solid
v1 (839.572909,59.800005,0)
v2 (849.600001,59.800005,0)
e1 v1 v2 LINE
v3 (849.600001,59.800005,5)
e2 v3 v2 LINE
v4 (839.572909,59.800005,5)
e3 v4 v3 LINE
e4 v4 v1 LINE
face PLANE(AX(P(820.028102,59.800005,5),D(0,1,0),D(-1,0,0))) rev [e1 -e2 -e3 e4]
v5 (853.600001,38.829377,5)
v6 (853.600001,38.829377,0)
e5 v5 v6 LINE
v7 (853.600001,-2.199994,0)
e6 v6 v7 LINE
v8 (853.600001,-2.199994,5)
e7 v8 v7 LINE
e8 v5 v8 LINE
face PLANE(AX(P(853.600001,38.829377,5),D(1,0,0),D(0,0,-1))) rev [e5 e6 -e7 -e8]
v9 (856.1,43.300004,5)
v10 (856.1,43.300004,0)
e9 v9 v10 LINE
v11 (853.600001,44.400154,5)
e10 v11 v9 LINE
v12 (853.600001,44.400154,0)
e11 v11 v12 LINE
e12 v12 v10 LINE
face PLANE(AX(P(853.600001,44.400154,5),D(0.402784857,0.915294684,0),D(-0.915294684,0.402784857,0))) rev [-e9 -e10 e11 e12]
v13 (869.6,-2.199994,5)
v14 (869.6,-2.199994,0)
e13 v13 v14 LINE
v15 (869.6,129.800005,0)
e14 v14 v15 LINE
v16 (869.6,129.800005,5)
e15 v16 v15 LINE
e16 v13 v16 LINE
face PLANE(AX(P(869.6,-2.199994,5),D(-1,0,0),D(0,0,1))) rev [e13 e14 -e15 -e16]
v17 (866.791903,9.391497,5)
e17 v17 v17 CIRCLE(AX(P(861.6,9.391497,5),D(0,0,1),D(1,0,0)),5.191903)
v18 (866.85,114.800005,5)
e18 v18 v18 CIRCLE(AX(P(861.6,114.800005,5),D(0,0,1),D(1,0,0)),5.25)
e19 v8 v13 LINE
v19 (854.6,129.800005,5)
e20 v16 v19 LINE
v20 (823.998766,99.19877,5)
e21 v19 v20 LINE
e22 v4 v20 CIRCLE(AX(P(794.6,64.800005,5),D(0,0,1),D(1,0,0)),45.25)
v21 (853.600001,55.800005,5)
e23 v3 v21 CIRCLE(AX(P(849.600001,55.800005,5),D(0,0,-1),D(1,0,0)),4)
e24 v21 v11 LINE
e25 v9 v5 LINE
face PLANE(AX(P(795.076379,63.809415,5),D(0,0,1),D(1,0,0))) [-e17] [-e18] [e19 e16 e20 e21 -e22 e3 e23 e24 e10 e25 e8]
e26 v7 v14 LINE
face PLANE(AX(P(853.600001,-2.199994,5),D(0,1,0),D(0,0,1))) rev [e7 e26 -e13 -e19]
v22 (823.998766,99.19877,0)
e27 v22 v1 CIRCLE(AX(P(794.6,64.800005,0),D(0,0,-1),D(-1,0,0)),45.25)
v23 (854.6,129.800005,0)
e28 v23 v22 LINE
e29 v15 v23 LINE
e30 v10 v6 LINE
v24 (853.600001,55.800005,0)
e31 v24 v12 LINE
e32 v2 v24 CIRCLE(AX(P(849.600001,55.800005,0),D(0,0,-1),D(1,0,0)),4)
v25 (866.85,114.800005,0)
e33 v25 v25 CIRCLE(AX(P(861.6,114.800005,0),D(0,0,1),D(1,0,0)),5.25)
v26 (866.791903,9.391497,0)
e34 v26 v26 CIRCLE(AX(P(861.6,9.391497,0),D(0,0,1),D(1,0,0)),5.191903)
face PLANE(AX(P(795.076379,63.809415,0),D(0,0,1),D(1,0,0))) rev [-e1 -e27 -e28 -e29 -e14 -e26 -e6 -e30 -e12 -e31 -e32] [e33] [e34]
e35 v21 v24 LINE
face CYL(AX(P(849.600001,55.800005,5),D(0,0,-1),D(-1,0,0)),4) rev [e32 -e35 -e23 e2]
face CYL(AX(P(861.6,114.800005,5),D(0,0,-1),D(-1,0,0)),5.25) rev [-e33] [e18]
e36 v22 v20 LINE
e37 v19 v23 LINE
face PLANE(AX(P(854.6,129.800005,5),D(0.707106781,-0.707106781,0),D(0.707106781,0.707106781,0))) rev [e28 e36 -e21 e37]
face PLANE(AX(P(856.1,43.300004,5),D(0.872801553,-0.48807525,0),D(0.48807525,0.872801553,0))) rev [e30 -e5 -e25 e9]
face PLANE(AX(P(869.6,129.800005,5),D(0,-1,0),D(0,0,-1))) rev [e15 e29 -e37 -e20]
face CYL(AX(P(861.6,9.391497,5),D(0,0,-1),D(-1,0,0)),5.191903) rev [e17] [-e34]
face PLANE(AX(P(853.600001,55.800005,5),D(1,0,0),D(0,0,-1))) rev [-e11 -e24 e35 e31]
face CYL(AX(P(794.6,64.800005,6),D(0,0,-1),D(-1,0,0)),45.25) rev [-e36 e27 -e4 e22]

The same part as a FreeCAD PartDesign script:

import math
import FreeCAD as App
import Part
import Sketcher
Q = App.Units.Quantity

doc = App.newDocument("Part")
body = doc.addObject("PartDesign::Body", "Body")

# Sketch on XY plane
sketch1 = body.newObject("Sketcher::SketchObject", "Sketch")
sketch1.AttachmentSupport = (doc.getObject("XY_Plane"), [""])
sketch1.MapMode = "FlatFace"
sketch1.addGeometry(Part.LineSegment(App.Vector(869.6, 129.8, 0), App.Vector(854.6, 129.8, 0)), False)
sketch1.addGeometry(Part.LineSegment(App.Vector(854.6, 129.8, 0), App.Vector(854.6, 124.8, 0)), False)
sketch1.addGeometry(Part.ArcOfCircle(Part.Circle(App.Vector(806.7, 126.4, 0), App.Vector(0, 0, 1), 47.9), math.radians(-80), math.radians(-2)), False)
sketch1.addGeometry(Part.ArcOfCircle(Part.Circle(App.Vector(795.1, 63.8, 0), App.Vector(0, 0, 1), 25.3), math.radians(-9), math.radians(38)), False)
sketch1.addGeometry(Part.LineSegment(App.Vector(820, 59.8, 0), App.Vector(849.6, 59.8, 0)), False)
sketch1.addGeometry(Part.ArcOfCircle(Part.Circle(App.Vector(849.6, 55.8, 0), App.Vector(0, 0, 1), 4), math.radians(0), math.radians(90)), False)
sketch1.addGeometry(Part.LineSegment(App.Vector(853.6, 55.8, 0), App.Vector(853.6, 44.4, 0)), False)
sketch1.addGeometry(Part.LineSegment(App.Vector(853.6, 44.4, 0), App.Vector(856.1, 43.3, 0)), False)
sketch1.addGeometry(Part.LineSegment(App.Vector(856.1, 43.3, 0), App.Vector(853.6, 38.8, 0)), False)
sketch1.addGeometry(Part.LineSegment(App.Vector(853.6, 38.8, 0), App.Vector(853.6, -2.2, 0)), False)
sketch1.addGeometry(Part.LineSegment(App.Vector(853.6, -2.2, 0), App.Vector(869.6, -2.2, 0)), False)
sketch1.addGeometry(Part.LineSegment(App.Vector(869.6, -2.2, 0), App.Vector(869.6, 129.8, 0)), False)
sketch1.addGeometry(Part.Circle(App.Vector(861.6, 9.4, 0), App.Vector(0, 0, 1), 5.2), False)
sketch1.addGeometry(Part.Circle(App.Vector(861.6, 114.8, 0), App.Vector(0, 0, 1), 5.2), False)
sketch1.addConstraint(Sketcher.Constraint("Coincident", 0, 2, 1, 1))
sketch1.addConstraint(Sketcher.Constraint("Coincident", 1, 2, 2, 2))
sketch1.addConstraint(Sketcher.Constraint("Coincident", 2, 1, 3, 2))
sketch1.addConstraint(Sketcher.Constraint("Coincident", 3, 1, 4, 1))
sketch1.addConstraint(Sketcher.Constraint("Tangent", 4, 2, 5, 2))
sketch1.addConstraint(Sketcher.Constraint("Tangent", 5, 1, 6, 1))
sketch1.addConstraint(Sketcher.Constraint("Coincident", 6, 2, 7, 1))
sketch1.addConstraint(Sketcher.Constraint("Coincident", 7, 2, 8, 1))
sketch1.addConstraint(Sketcher.Constraint("Coincident", 8, 2, 9, 1))
sketch1.addConstraint(Sketcher.Constraint("Coincident", 9, 2, 10, 1))
sketch1.addConstraint(Sketcher.Constraint("Coincident", 10, 2, 11, 1))
sketch1.addConstraint(Sketcher.Constraint("Coincident", 11, 2, 0, 1))
sketch1.addConstraint(Sketcher.Constraint("Horizontal", 0))
sketch1.addConstraint(Sketcher.Constraint("Vertical", 1))
sketch1.addConstraint(Sketcher.Constraint("Horizontal", 4))
sketch1.addConstraint(Sketcher.Constraint("Vertical", 6))
sketch1.addConstraint(Sketcher.Constraint("Vertical", 9))
sketch1.addConstraint(Sketcher.Constraint("Horizontal", 10))
sketch1.addConstraint(Sketcher.Constraint("Vertical", 11))
sketch1.addConstraint(Sketcher.Constraint("Vertical", 12, 3, 13, 3))
sketch1.addConstraint(Sketcher.Constraint("Vertical", 6, 2, 8, 2))
sketch1.addConstraint(Sketcher.Constraint("Radius", 5, 4.0))
sketch1.addConstraint(Sketcher.Constraint("Diameter", 13, 10.5))
sketch1.addConstraint(Sketcher.Constraint("DistanceX", 0, 2, 0, 1, 15.0))
sketch1.addConstraint(Sketcher.Constraint("DistanceX", 10, 1, 10, 2, 15.999999))
sketch1.addConstraint(Sketcher.Constraint("DistanceY", 1, 2, 1, 1, 5.0))
sketch1.addConstraint(Sketcher.Constraint("DistanceY", 11, 1, 11, 2, 131.999999))
sketch1.addConstraint(Sketcher.Constraint("DistanceX", 5, 3, 12, 3, 11.999999))
sketch1.addConstraint(Sketcher.Constraint("DistanceY", 5, 3, 13, 3, 59.0))
sketch1.addConstraint(Sketcher.Constraint("DistanceY", 13, 3, 0, 2, 15.0))
sketch1.addConstraint(Sketcher.Constraint("DistanceX", -1, 1, 5, 3, 849.600001))
sketch1.addConstraint(Sketcher.Constraint("DistanceX", -1, 1, 7, 2, 856.1))
sketch1.addConstraint(Sketcher.Constraint("Radius", 3, 25.271799))
sketch1.addConstraint(Sketcher.Constraint("DistanceY", 7, 2, 5, 1, 12.5))
sketch1.addConstraint(Sketcher.Constraint("Radius", 2, 47.90217))
sketch1.addConstraint(Sketcher.Constraint("Diameter", 12, 10.383806))
sketch1.addConstraint(Sketcher.Constraint("DistanceX", 4, 1, 4, 2, 29.5719))
sketch1.addConstraint(Sketcher.Constraint("DistanceY", 6, 2, 6, 1, 11.39985))
sketch1.addConstraint(Sketcher.Constraint("DistanceY", 9, 2, 9, 1, 41.029371))
sketch1.addConstraint(Sketcher.Constraint("DistanceX", -1, 1, 3, 3, 795.076379))
sketch1.addConstraint(Sketcher.Constraint("DistanceY", -1, 1, 2, 1, 79.197182))
sketch1.addConstraint(Sketcher.Constraint("DistanceY", 3, 3, 2, 3, 62.547651))
sketch1.addConstraint(Sketcher.Constraint("DistanceY", 12, 3, 3, 3, 54.417918))
pad1 = body.newObject("PartDesign::Pad", "Pad")
pad1.Profile = sketch1
pad1.Length = 5

# Sketch on XY plane
sketch2 = body.newObject("Sketcher::SketchObject", "Sketch001")
sketch2.AttachmentSupport = (doc.getObject("XY_Plane"), [""])
sketch2.MapMode = "FlatFace"
sketch2.addGeometry(Part.LineSegment(App.Vector(854.6, 129.8, 0), App.Vector(799.7, 74.9, 0)), False)
sketch2.addGeometry(Part.LineSegment(App.Vector(799.7, 74.9, 0), App.Vector(857.1, 78.5, 0)), False)
sketch2.addGeometry(Part.LineSegment(App.Vector(857.1, 78.5, 0), App.Vector(855.7, 119.4, 0)), False)
sketch2.addGeometry(Part.LineSegment(App.Vector(855.7, 119.4, 0), App.Vector(858.6, 128.5, 0)), False)
sketch2.addGeometry(Part.LineSegment(App.Vector(858.6, 128.5, 0), App.Vector(854.6, 129.8, 0)), False)
sketch2.addConstraint(Sketcher.Constraint("Coincident", 0, 2, 1, 1))
sketch2.addConstraint(Sketcher.Constraint("Coincident", 1, 2, 2, 1))
sketch2.addConstraint(Sketcher.Constraint("Coincident", 2, 2, 3, 1))
sketch2.addConstraint(Sketcher.Constraint("Coincident", 3, 2, 4, 1))
sketch2.addConstraint(Sketcher.Constraint("Coincident", 4, 2, 0, 1))
sketch2.addConstraint(Sketcher.Constraint("Angle", 0, Q("-135 deg")))
sketch2.addConstraint(Sketcher.Constraint("DistanceX", -1, 1, 4, 2, 854.6))
sketch2.addConstraint(Sketcher.Constraint("Distance", 0, 77.639671))
sketch2.addConstraint(Sketcher.Constraint("Distance", 1, 57.491191))
sketch2.addConstraint(Sketcher.Constraint("DistanceY", -1, 1, 1, 2, 78.451748))
sketch2.addConstraint(Sketcher.Constraint("DistanceX", -1, 1, 2, 2, 855.676639))
sketch2.addConstraint(Sketcher.Constraint("DistanceY", -1, 1, 2, 2, 119.436171))
sketch2.addConstraint(Sketcher.Constraint("DistanceX", -1, 1, 3, 2, 858.64789))
sketch2.addConstraint(Sketcher.Constraint("DistanceY", -1, 1, 3, 2, 128.484981))
sketch2.addConstraint(Sketcher.Constraint("DistanceY", 0, 2, 1, 2, 3.551281))
pad2 = body.newObject("PartDesign::Pad", "Pad001")
pad2.Profile = sketch2
pad2.Length = 5

# Sketch on XY plane
sketch3 = body.newObject("Sketcher::SketchObject", "Sketch002")
sketch3.AttachmentSupport = (doc.getObject("XY_Plane"), [""])
sketch3.MapMode = "FlatFace"
sketch3.addGeometry(Part.Circle(App.Vector(795, 65, 0), App.Vector(0, 0, 1), 45), False)
sketch3.addConstraint(Sketcher.Constraint("Diameter", 0, 90.5))
sketch3.addConstraint(Sketcher.Constraint("DistanceX", -1, 1, 0, 3, 794.6))
sketch3.addConstraint(Sketcher.Constraint("DistanceY", -1, 1, 0, 3, 64.800005))
pocket1 = body.newObject("PartDesign::Pocket", "Pocket")
pocket1.Profile = sketch3
pocket1.Length = 6
pocket1.Reversed = True

doc.recompute()
